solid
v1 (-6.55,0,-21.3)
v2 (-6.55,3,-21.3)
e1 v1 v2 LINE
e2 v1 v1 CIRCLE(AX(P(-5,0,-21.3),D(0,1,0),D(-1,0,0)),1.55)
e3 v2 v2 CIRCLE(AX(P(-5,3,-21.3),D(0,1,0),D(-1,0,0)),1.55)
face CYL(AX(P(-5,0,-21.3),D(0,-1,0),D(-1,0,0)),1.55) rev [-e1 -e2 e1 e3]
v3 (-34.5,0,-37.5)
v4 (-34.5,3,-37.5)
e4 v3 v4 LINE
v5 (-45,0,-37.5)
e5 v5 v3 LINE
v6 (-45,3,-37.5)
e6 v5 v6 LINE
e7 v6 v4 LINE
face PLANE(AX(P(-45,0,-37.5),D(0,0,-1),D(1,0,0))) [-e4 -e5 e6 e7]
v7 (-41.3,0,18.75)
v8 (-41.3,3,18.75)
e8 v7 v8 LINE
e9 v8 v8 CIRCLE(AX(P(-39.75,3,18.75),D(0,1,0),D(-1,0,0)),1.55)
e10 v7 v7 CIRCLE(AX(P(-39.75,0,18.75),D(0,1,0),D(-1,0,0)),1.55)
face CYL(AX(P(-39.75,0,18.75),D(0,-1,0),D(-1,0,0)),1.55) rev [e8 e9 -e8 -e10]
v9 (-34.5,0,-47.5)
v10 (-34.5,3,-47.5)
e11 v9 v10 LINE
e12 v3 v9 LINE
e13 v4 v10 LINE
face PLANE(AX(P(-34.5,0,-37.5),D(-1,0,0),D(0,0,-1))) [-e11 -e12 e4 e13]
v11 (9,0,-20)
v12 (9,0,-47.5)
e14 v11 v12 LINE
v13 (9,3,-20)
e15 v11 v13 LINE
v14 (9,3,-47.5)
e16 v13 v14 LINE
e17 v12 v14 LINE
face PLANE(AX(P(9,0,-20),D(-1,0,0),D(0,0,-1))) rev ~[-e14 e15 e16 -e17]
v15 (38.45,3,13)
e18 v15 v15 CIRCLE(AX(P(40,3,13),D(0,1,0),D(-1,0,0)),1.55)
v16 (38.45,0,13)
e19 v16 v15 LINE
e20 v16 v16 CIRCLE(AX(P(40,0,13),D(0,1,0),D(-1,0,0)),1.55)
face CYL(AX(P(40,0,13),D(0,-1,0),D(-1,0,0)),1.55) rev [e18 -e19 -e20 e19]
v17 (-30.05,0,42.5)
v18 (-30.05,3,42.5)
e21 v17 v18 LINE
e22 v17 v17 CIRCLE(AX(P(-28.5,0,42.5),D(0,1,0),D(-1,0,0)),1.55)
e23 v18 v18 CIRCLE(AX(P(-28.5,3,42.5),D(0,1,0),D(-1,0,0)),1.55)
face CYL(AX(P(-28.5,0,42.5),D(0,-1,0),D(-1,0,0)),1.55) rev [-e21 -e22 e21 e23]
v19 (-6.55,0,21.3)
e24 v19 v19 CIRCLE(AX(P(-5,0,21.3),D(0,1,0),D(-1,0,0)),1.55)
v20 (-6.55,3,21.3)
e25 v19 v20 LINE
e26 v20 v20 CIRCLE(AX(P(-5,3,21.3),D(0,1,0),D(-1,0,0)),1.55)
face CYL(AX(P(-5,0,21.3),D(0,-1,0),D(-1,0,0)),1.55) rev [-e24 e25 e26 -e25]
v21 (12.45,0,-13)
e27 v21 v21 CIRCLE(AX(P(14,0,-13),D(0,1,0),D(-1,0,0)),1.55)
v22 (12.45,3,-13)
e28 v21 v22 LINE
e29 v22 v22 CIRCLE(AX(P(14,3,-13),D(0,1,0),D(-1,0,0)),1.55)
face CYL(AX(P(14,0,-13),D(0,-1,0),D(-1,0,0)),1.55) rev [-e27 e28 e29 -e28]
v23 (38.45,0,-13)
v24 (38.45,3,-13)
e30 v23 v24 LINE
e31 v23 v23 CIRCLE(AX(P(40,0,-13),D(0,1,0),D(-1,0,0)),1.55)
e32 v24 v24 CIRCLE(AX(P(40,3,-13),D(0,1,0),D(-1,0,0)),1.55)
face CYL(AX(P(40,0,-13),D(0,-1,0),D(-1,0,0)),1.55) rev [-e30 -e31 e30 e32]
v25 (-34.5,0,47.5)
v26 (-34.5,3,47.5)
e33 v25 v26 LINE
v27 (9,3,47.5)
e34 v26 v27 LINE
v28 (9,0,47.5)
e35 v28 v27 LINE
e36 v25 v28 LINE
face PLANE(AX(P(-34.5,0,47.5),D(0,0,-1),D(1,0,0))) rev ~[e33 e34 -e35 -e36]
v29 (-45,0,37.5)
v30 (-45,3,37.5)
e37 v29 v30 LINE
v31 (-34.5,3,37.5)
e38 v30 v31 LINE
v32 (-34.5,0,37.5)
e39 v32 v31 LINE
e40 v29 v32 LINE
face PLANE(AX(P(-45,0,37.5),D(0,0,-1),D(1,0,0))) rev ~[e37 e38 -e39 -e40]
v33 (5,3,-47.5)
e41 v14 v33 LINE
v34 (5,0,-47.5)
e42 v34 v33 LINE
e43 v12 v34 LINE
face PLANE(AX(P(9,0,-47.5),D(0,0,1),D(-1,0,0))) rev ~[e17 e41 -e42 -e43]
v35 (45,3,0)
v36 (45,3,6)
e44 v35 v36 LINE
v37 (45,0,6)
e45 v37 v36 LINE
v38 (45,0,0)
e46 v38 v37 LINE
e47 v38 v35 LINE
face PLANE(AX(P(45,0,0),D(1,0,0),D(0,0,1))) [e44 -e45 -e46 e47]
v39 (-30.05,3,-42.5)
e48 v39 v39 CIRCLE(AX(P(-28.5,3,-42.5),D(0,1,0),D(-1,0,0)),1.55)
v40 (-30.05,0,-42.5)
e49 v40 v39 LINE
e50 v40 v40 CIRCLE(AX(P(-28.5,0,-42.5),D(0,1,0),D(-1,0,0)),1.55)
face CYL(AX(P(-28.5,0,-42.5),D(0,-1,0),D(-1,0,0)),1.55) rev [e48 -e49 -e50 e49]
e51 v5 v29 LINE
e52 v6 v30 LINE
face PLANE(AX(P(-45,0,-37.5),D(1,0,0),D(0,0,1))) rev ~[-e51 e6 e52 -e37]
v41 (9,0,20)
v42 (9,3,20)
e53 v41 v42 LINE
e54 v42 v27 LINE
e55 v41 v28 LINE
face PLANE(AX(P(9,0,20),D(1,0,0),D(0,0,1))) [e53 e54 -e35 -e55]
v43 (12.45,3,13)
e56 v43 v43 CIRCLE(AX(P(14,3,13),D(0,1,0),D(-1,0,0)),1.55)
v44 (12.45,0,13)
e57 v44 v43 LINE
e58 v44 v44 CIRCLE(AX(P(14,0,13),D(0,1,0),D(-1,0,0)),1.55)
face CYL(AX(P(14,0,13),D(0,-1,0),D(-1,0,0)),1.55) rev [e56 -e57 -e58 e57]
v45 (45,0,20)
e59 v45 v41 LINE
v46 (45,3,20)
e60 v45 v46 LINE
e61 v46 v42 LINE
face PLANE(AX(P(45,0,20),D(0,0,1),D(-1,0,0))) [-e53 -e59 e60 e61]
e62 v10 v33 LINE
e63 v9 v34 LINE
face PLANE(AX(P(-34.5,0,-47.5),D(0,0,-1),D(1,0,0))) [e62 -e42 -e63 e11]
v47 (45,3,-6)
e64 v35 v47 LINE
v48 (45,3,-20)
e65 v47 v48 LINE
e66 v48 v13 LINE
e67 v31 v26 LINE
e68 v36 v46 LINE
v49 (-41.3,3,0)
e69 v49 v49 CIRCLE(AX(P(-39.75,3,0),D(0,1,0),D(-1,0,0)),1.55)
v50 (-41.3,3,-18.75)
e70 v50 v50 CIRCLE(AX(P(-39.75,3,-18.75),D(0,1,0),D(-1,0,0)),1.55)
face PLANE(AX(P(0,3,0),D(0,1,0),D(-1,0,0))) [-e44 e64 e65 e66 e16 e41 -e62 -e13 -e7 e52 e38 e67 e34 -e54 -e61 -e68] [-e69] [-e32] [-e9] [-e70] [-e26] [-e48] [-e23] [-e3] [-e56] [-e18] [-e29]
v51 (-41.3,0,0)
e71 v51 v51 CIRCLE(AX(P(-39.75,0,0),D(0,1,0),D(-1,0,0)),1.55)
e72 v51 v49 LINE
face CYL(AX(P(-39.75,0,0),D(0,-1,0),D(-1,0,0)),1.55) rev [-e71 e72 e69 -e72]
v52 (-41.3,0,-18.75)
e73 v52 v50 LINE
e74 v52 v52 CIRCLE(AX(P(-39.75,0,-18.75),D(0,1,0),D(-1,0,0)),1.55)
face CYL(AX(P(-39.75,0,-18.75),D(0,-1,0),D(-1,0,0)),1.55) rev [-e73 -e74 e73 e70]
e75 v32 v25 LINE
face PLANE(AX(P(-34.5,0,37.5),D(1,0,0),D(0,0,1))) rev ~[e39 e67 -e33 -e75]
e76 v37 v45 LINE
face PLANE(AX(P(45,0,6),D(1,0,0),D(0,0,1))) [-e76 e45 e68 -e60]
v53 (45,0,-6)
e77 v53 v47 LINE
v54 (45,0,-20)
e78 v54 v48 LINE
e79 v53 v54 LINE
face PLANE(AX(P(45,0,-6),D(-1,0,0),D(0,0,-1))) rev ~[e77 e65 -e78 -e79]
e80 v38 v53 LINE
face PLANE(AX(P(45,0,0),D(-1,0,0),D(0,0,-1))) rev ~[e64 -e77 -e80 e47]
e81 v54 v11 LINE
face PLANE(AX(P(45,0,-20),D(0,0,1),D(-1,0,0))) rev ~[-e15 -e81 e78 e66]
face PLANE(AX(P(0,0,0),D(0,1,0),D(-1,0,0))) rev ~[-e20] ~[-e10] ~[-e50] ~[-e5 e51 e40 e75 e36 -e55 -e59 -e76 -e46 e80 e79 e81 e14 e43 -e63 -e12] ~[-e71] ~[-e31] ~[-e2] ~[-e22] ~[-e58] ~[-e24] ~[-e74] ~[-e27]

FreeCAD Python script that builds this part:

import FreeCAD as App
import Part
import Sketcher

V = App.Vector

doc = App.newDocument("Part")
params = doc.addObject("Spreadsheet::Sheet", "Params")
for row, (alias, value) in enumerate([
    ("sketch1_diameter", "3.1 mm"),
    ("sketch1_width", "36 mm"),
    ("sketch1_width2", "10.5 mm"),
    ("sketch1_height", "40 mm"),
    ("sketch1_height2", "10 mm"),
    ("pad1_length", "3 mm"),
], start=1):
    params.set(f"A{row}", alias)
    params.set(f"B{row}", "=" + value)
    params.setAlias(f"B{row}", alias)

body = doc.addObject("PartDesign::Body", "Body")

# Sketch on XZ plane
sketch1 = body.newObject("Sketcher::SketchObject", "Sketch")
sketch1.AttachmentSupport = (doc.getObject("XZ_Plane"), [""])
sketch1.MapMode = "FlatFace"
sketch1.addGeometry([
    Part.LineSegment(V(45, 20, 0), V(45, -20, 0)),  # 0
    Part.LineSegment(V(45, -20, 0), V(9, -20, 0)),  # 1
    Part.LineSegment(V(9, -20, 0), V(9, -47.5, 0)),  # 2
    Part.LineSegment(V(9, -47.5, 0), V(-34.5, -47.5, 0)),  # 3
    Part.LineSegment(V(-34.5, -47.5, 0), V(-34.5, -37.5, 0)),  # 4
    Part.LineSegment(V(-34.5, -37.5, 0), V(-45, -37.5, 0)),  # 5
    Part.LineSegment(V(-45, -37.5, 0), V(-45, 37.5, 0)),  # 6
    Part.LineSegment(V(-45, 37.5, 0), V(-34.5, 37.5, 0)),  # 7
    Part.LineSegment(V(-34.5, 37.5, 0), V(-34.5, 47.5, 0)),  # 8
    Part.LineSegment(V(-34.5, 47.5, 0), V(9, 47.5, 0)),  # 9
    Part.LineSegment(V(9, 47.5, 0), V(9, 20, 0)),  # 10
    Part.LineSegment(V(9, 20, 0), V(45, 20, 0)),  # 11
    Part.Circle(V(40, -13, 0), V(0, 0, 1), 1.6),  # 12
    Part.Circle(V(14, -13, 0), V(0, 0, 1), 1.6),  # 13
    Part.Circle(V(-28.5, -42.5, 0), V(0, 0, 1), 1.6),  # 14
    Part.Circle(V(-5, -21.3, 0), V(0, 0, 1), 1.6),  # 15
    Part.Circle(V(-39.8, -18.8, 0), V(0, 0, 1), 1.6),  # 16
    Part.Circle(V(40, 13, 0), V(0, 0, 1), 1.6),  # 17
    Part.Circle(V(14, 13, 0), V(0, 0, 1), 1.6),  # 18
    Part.Circle(V(-5, 21.3, 0), V(0, 0, 1), 1.6),  # 19
    Part.Circle(V(-39.8, 0, 0), V(0, 0, 1), 1.6),  # 20
    Part.Circle(V(-39.8, 18.8, 0), V(0, 0, 1), 1.6),  # 21
    Part.Circle(V(-28.5, 42.5, 0), V(0, 0, 1), 1.6),  # 22
], False)
sketch1.addConstraint([
    Sketcher.Constraint("Coincident", 0, 2, 1, 1),
    Sketcher.Constraint("Coincident", 1, 2, 2, 1),
    Sketcher.Constraint("Coincident", 2, 2, 3, 1),
    Sketcher.Constraint("Coincident", 3, 2, 4, 1),
    Sketcher.Constraint("Coincident", 4, 2, 5, 1),
    Sketcher.Constraint("Coincident", 5, 2, 6, 1),
    Sketcher.Constraint("Coincident", 6, 2, 7, 1),
    Sketcher.Constraint("Coincident", 7, 2, 8, 1),
    Sketcher.Constraint("Coincident", 8, 2, 9, 1),
    Sketcher.Constraint("Coincident", 9, 2, 10, 1),
    Sketcher.Constraint("Coincident", 10, 2, 11, 1),
    Sketcher.Constraint("Coincident", 11, 2, 0, 1),
    Sketcher.Constraint("Vertical", 0),
    Sketcher.Constraint("Horizontal", 1),
    Sketcher.Constraint("Vertical", 2),
    Sketcher.Constraint("Horizontal", 3),
    Sketcher.Constraint("Vertical", 4),
    Sketcher.Constraint("Horizontal", 5),
    Sketcher.Constraint("Vertical", 6),
    Sketcher.Constraint("Horizontal", 7),
    Sketcher.Constraint("Vertical", 8),
    Sketcher.Constraint("Horizontal", 9),
    Sketcher.Constraint("Vertical", 10),
    Sketcher.Constraint("Horizontal", 11),
    Sketcher.Constraint("Equal", 12, 13),
    Sketcher.Constraint("Equal", 13, 14),
    Sketcher.Constraint("Equal", 14, 15),
    Sketcher.Constraint("Equal", 15, 16),
    Sketcher.Constraint("Equal", 16, 17),
    Sketcher.Constraint("Equal", 17, 18),
    Sketcher.Constraint("Equal", 18, 19),
    Sketcher.Constraint("Equal", 19, 20),
    Sketcher.Constraint("Equal", 20, 21),
    Sketcher.Constraint("Equal", 21, 22),
    Sketcher.Constraint("Symmetric", 12, 3, 17, 3, -1),
    Sketcher.Constraint("Symmetric", 13, 3, 18, 3, -1),
    Sketcher.Constraint("Symmetric", 15, 3, 19, 3, -1),
    Sketcher.Constraint("Symmetric", 16, 3, 21, 3, -1),
    Sketcher.Constraint("Symmetric", 14, 3, 22, 3, -1),
    Sketcher.Constraint("Symmetric", 4, 2, 7, 2, -1),
    Sketcher.Constraint("Symmetric", 2, 2, 9, 2, -1),
    Sketcher.Constraint("PointOnObject", 20, 3, -1),
    Sketcher.Constraint("Horizontal", 12, 3, 13, 3),
    Sketcher.Constraint("Vertical", 16, 3, 20, 3),
    Sketcher.Constraint("Equal", 2, 10),
    Sketcher.Constraint("Diameter", 12, 3.1),
    Sketcher.Constraint("DistanceX", 1, 2, 1, 1, 36.0),
    Sketcher.Constraint("DistanceX", 5, 2, 5, 1, 10.5),
    Sketcher.Constraint("DistanceX", -1, 1, 13, 3, 14.0),
    Sketcher.Constraint("DistanceX", 15, 3, 1, 2, 14.0),
    Sketcher.Constraint("DistanceX", 3, 2, 14, 3, 6.0),
    Sketcher.Constraint("DistanceY", 0, 2, 0, 1, 40.0),
    Sketcher.Constraint("DistanceY", 4, 1, 4, 2, 10.0),
    Sketcher.Constraint("DistanceY", 6, 1, 6, 2, 75.0),
    Sketcher.Constraint("DistanceX", 3, 2, 3, 1, 43.5),
    Sketcher.Constraint("DistanceX", -1, 1, 12, 3, 40.0),
    Sketcher.Constraint("DistanceY", 12, 3, -1, 1, 13.0),
    Sketcher.Constraint("DistanceX", 15, 3, -1, 1, 5.0),
    Sketcher.Constraint("DistanceY", 2, 2, 14, 3, 5.0),
    Sketcher.Constraint("DistanceY", 15, 3, -1, 1, 21.3),
    Sketcher.Constraint("DistanceY", 16, 3, 21, 3, 37.5),
    Sketcher.Constraint("DistanceX", 16, 3, -1, 1, 39.75),
])
sketch1.setExpression("Constraints[45]", "Params.sketch1_diameter")
sketch1.setExpression("Constraints[46]", "Params.sketch1_width")
sketch1.setExpression("Constraints[47]", "Params.sketch1_width2")
sketch1.setExpression("Constraints[51]", "Params.sketch1_height")
sketch1.setExpression("Constraints[52]", "Params.sketch1_height2")
pad1 = body.newObject("PartDesign::Pad", "Pad")
pad1.Profile = sketch1
pad1.setExpression("Length", "Params.pad1_length")
pad1.Reversed = True

doc.recompute()
